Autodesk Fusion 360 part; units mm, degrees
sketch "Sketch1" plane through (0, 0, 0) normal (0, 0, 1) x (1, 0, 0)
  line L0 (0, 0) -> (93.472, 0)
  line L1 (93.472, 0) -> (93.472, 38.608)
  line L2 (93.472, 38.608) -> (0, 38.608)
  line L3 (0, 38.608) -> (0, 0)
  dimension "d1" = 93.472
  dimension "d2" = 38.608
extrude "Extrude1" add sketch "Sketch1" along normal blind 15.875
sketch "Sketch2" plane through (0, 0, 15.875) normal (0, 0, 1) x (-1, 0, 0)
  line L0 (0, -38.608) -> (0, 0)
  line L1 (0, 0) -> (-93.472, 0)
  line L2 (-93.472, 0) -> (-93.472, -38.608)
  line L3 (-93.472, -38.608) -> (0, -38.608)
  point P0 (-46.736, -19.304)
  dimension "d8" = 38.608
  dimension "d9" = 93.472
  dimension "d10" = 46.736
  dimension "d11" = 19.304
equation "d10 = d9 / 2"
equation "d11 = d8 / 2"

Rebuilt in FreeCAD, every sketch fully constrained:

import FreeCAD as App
import Part
import Sketcher
from FreeCAD import Vector
Q = App.Units.Quantity


def add_polygon(sketch, points):
    """Adds a closed chain of lines whose ends are joined by coincident constraints."""
    first, n = sketch.GeometryCount, len(points)
    for a, b in zip(points, points[1:] + points[:1]):
        sketch.addGeometry(Part.LineSegment(App.Vector(*a, 0), App.Vector(*b, 0)), False)
    for i in range(n):
        sketch.addConstraint(Sketcher.Constraint("Coincident", first + i, 2, first + (i + 1) % n, 1))

doc = App.newDocument("Part")
body = doc.addObject("PartDesign::Body", "Body")

# Sketch on XY plane
sketch1 = body.newObject("Sketcher::SketchObject", "Sketch")
sketch1.AttachmentSupport = (doc.getObject("XY_Plane"), [""])
sketch1.MapMode = "FlatFace"
add_polygon(sketch1, [(0, 38.608), (0, 0), (93.472, 0), (93.472, 38.608)])  # lines 0-3
sketch1.addConstraint([
    Sketcher.Constraint("Vertical", 0),
    Sketcher.Constraint("Horizontal", 1),
    Sketcher.Constraint("Vertical", 2),
    Sketcher.Constraint("Horizontal", 3),
    Sketcher.Constraint("Coincident", 0, 2, -1, 1),
    Sketcher.Constraint("DistanceX", 1, 1, 1, 2, Q("3.68 in")),
    Sketcher.Constraint("DistanceY", 0, 2, 0, 1, Q("1.52 in")),
])
pad1 = body.newObject("PartDesign::Pad", "Pad")
pad1.Profile = sketch1
pad1.Length = Q("0.625 in")

doc.recompute()
